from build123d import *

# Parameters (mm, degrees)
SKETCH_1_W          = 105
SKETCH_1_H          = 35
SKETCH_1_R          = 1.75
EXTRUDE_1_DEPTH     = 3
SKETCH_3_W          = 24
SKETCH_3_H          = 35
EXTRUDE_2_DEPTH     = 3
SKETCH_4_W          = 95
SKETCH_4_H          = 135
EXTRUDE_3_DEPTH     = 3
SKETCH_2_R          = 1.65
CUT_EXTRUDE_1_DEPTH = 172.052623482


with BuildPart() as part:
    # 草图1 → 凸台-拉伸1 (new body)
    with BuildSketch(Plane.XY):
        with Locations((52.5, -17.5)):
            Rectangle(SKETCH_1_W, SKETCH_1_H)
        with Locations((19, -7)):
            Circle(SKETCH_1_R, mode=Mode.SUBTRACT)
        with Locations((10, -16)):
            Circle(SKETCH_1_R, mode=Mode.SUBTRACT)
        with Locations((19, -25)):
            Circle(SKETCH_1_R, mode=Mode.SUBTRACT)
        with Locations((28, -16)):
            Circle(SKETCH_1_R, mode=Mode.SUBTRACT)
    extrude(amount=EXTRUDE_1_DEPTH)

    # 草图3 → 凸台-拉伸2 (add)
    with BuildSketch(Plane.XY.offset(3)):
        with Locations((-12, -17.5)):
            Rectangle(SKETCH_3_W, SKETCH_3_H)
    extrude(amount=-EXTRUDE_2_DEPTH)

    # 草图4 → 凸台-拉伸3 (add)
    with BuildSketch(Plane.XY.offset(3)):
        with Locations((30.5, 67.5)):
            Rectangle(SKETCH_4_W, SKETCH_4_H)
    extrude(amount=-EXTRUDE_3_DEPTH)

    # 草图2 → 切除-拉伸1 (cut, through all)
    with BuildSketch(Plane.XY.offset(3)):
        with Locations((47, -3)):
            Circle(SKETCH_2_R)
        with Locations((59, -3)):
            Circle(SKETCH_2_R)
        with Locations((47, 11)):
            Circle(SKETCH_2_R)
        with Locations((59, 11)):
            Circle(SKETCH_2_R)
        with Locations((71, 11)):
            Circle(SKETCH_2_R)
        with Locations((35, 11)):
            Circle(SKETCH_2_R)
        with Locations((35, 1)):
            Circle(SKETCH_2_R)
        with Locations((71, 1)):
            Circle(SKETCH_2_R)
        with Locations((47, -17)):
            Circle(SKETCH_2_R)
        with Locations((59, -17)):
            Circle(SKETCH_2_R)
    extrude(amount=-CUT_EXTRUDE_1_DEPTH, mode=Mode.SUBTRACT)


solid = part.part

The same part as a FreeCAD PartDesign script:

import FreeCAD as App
import Part
import Sketcher


def add_polygon(sketch, points):
    """Adds a closed chain of lines whose ends are joined by coincident constraints."""
    first, n = sketch.GeometryCount, len(points)
    for a, b in zip(points, points[1:] + points[:1]):
        sketch.addGeometry(Part.LineSegment(App.Vector(*a, 0), App.Vector(*b, 0)), False)
    for i in range(n):
        sketch.addConstraint(Sketcher.Constraint("Coincident", first + i, 2, first + (i + 1) % n, 1))

doc = App.newDocument("Part")
body = doc.addObject("PartDesign::Body", "Body")

# Sketch on XY plane
sketch1 = doc.addObject("Sketcher::SketchObject", "Sketch")
body.addObject(sketch1)
sketch1.AttachmentSupport = (doc.XY_Plane, [""])
sketch1.MapMode = "FlatFace"
add_polygon(sketch1, [(0, 0), (0, -35), (105, -35), (105, 0)])  # lines 0-3
sketch1.addGeometry(Part.Circle(App.Vector(19, -25, 0), App.Vector(0, 0, 1), 1.8), False)  # 4
sketch1.addGeometry(Part.Circle(App.Vector(10, -16, 0), App.Vector(0, 0, 1), 1.8), False)  # 5
sketch1.addGeometry(Part.Circle(App.Vector(28, -16, 0), App.Vector(0, 0, 1), 1.8), False)  # 6
sketch1.addGeometry(Part.Circle(App.Vector(19, -7, 0), App.Vector(0, 0, 1), 1.8), False)  # 7
sketch1.addConstraint(Sketcher.Constraint("Vertical", 0))
sketch1.addConstraint(Sketcher.Constraint("Horizontal", 1))
sketch1.addConstraint(Sketcher.Constraint("Vertical", 2))
sketch1.addConstraint(Sketcher.Constraint("Horizontal", 3))
sketch1.addConstraint(Sketcher.Constraint("Coincident", 3, 2, -1, 1))
sketch1.addConstraint(Sketcher.Constraint("Equal", 4, 5))
sketch1.addConstraint(Sketcher.Constraint("Equal", 5, 6))
sketch1.addConstraint(Sketcher.Constraint("Equal", 6, 7))
sketch1.addConstraint(Sketcher.Constraint("Horizontal", 5, 3, 6, 3))
sketch1.addConstraint(Sketcher.Constraint("Vertical", 4, 3, 7, 3))
sketch1.addConstraint(Sketcher.Constraint("Diameter", 4, 3.5))
sketch1.addConstraint(Sketcher.Constraint("DistanceX", 1, 1, 1, 2, 105.0))
sketch1.addConstraint(Sketcher.Constraint("DistanceY", 0, 2, 0, 1, 35.0))
sketch1.addConstraint(Sketcher.Constraint("DistanceX", -1, 1, 4, 3, 19.0))
sketch1.addConstraint(Sketcher.Constraint("DistanceY", 4, 3, -1, 1, 25.0))
sketch1.addConstraint(Sketcher.Constraint("DistanceX", -1, 1, 5, 3, 10.0))
sketch1.addConstraint(Sketcher.Constraint("DistanceY", 5, 3, -1, 1, 16.0))
sketch1.addConstraint(Sketcher.Constraint("DistanceX", -1, 1, 6, 3, 28.0))
sketch1.addConstraint(Sketcher.Constraint("DistanceY", 7, 3, -1, 1, 7.0))
pad1 = doc.addObject("PartDesign::Pad", "Pad")
body.addObject(pad1)
pad1.Profile = sketch1
pad1.Length = 3

# Sketch on XY plane
sketch2 = doc.addObject("Sketcher::SketchObject", "Sketch001")
body.addObject(sketch2)
sketch2.AttachmentSupport = (doc.XY_Plane, [""])
sketch2.MapMode = "FlatFace"
sketch2.AttachmentOffset = App.Placement(App.Vector(0, 0, 3), App.Rotation())
add_polygon(sketch2, [(-24, 0), (-24, -35), (0, -35), (0, 0)])  # lines 0-3
sketch2.addConstraint(Sketcher.Constraint("Vertical", 0))
sketch2.addConstraint(Sketcher.Constraint("Horizontal", 1))
sketch2.addConstraint(Sketcher.Constraint("Vertical", 2))
sketch2.addConstraint(Sketcher.Constraint("Horizontal", 3))
sketch2.addConstraint(Sketcher.Constraint("Coincident", 2, 2, -1, 1))
sketch2.addConstraint(Sketcher.Constraint("DistanceX", 1, 1, 1, 2, 24.0))
sketch2.addConstraint(Sketcher.Constraint("DistanceY", 0, 2, 0, 1, 35.0))
pad2 = doc.addObject("PartDesign::Pad", "Pad001")
body.addObject(pad2)
pad2.Profile = sketch2
pad2.Length = 3
pad2.Reversed = True

# Sketch on XY plane
sketch3 = doc.addObject("Sketcher::SketchObject", "Sketch002")
body.addObject(sketch3)
sketch3.AttachmentSupport = (doc.XY_Plane, [""])
sketch3.MapMode = "FlatFace"
sketch3.AttachmentOffset = App.Placement(App.Vector(0, 0, 3), App.Rotation())
add_polygon(sketch3, [(-17, 135), (-17, 0), (78, 0), (78, 135)])  # lines 0-3
sketch3.addConstraint(Sketcher.Constraint("Vertical", 0))
sketch3.addConstraint(Sketcher.Constraint("Horizontal", 1))
sketch3.addConstraint(Sketcher.Constraint("Vertical", 2))
sketch3.addConstraint(Sketcher.Constraint("Horizontal", 3))
sketch3.addConstraint(Sketcher.Constraint("PointOnObject", 0, 2, -1))
sketch3.addConstraint(Sketcher.Constraint("DistanceX", 1, 1, 1, 2, 95.0))
sketch3.addConstraint(Sketcher.Constraint("DistanceY", 0, 2, 0, 1, 135.0))
sketch3.addConstraint(Sketcher.Constraint("DistanceX", 0, 2, -1, 1, 17.0))
pad3 = doc.addObject("PartDesign::Pad", "Pad002")
body.addObject(pad3)
pad3.Profile = sketch3
pad3.Length = 3
pad3.Reversed = True

# Sketch on XY plane
sketch4 = doc.addObject("Sketcher::SketchObject", "Sketch003")
body.addObject(sketch4)
sketch4.AttachmentSupport = (doc.XY_Plane, [""])
sketch4.MapMode = "FlatFace"
sketch4.AttachmentOffset = App.Placement(App.Vector(0, 0, 3), App.Rotation())
sketch4.addGeometry(Part.Circle(App.Vector(47, -3, 0), App.Vector(0, 0, 1), 1.6), False)
sketch4.addGeometry(Part.Circle(App.Vector(59, -3, 0), App.Vector(0, 0, 1), 1.6), False)
sketch4.addGeometry(Part.Circle(App.Vector(47, 11, 0), App.Vector(0, 0, 1), 1.6), False)
sketch4.addGeometry(Part.Circle(App.Vector(59, 11, 0), App.Vector(0, 0, 1), 1.6), False)
sketch4.addGeometry(Part.Circle(App.Vector(71, 11, 0), App.Vector(0, 0, 1), 1.6), False)
sketch4.addGeometry(Part.Circle(App.Vector(35, 11, 0), App.Vector(0, 0, 1), 1.6), False)
sketch4.addGeometry(Part.Circle(App.Vector(35, 1, 0), App.Vector(0, 0, 1), 1.6), False)
sketch4.addGeometry(Part.Circle(App.Vector(71, 1, 0), App.Vector(0, 0, 1), 1.6), False)
sketch4.addGeometry(Part.Circle(App.Vector(47, -17, 0), App.Vector(0, 0, 1), 1.6), False)
sketch4.addGeometry(Part.Circle(App.Vector(59, -17, 0), App.Vector(0, 0, 1), 1.6), False)
sketch4.addConstraint(Sketcher.Constraint("Equal", 0, 1))
sketch4.addConstraint(Sketcher.Constraint("Equal", 1, 2))
sketch4.addConstraint(Sketcher.Constraint("Equal", 2, 3))
sketch4.addConstraint(Sketcher.Constraint("Equal", 3, 4))
sketch4.addConstraint(Sketcher.Constraint("Equal", 4, 5))
sketch4.addConstraint(Sketcher.Constraint("Equal", 5, 6))
sketch4.addConstraint(Sketcher.Constraint("Equal", 6, 7))
sketch4.addConstraint(Sketcher.Constraint("Equal", 7, 8))
sketch4.addConstraint(Sketcher.Constraint("Equal", 8, 9))
sketch4.addConstraint(Sketcher.Constraint("Horizontal", 0, 3, 1, 3))
sketch4.addConstraint(Sketcher.Constraint("Horizontal", 2, 3, 3, 3))
sketch4.addConstraint(Sketcher.Constraint("Horizontal", 3, 3, 4, 3))
sketch4.addConstraint(Sketcher.Constraint("Horizontal", 4, 3, 5, 3))
sketch4.addConstraint(Sketcher.Constraint("Horizontal", 6, 3, 7, 3))
sketch4.addConstraint(Sketcher.Constraint("Horizontal", 8, 3, 9, 3))
sketch4.addConstraint(Sketcher.Constraint("Vertical", 0, 3, 2, 3))
sketch4.addConstraint(Sketcher.Constraint("Vertical", 1, 3, 3, 3))
sketch4.addConstraint(Sketcher.Constraint("Vertical", 5, 3, 6, 3))
sketch4.addConstraint(Sketcher.Constraint("Vertical", 4, 3, 7, 3))
sketch4.addConstraint(Sketcher.Constraint("Vertical", 2, 3, 8, 3))
sketch4.addConstraint(Sketcher.Constraint("Vertical", 3, 3, 9, 3))
sketch4.addConstraint(Sketcher.Constraint("Diameter", 0, 3.3))
sketch4.addConstraint(Sketcher.Constraint("DistanceX", -1, 1, 0, 3, 47.0))
sketch4.addConstraint(Sketcher.Constraint("DistanceY", 0, 3, -1, 1, 3.0))
sketch4.addConstraint(Sketcher.Constraint("DistanceX", -1, 1, 1, 3, 59.0))
sketch4.addConstraint(Sketcher.Constraint("DistanceY", -1, 1, 2, 3, 11.0))
sketch4.addConstraint(Sketcher.Constraint("DistanceX", -1, 1, 4, 3, 71.0))
sketch4.addConstraint(Sketcher.Constraint("DistanceX", -1, 1, 5, 3, 35.0))
sketch4.addConstraint(Sketcher.Constraint("DistanceY", -1, 1, 6, 3, 1.0))
sketch4.addConstraint(Sketcher.Constraint("DistanceY", 8, 3, -1, 1, 17.0))
pocket1 = doc.addObject("PartDesign::Pocket", "Pocket")
body.addObject(pocket1)
pocket1.Profile = sketch4
pocket1.Type = "ThroughAll"

doc.recompute()
